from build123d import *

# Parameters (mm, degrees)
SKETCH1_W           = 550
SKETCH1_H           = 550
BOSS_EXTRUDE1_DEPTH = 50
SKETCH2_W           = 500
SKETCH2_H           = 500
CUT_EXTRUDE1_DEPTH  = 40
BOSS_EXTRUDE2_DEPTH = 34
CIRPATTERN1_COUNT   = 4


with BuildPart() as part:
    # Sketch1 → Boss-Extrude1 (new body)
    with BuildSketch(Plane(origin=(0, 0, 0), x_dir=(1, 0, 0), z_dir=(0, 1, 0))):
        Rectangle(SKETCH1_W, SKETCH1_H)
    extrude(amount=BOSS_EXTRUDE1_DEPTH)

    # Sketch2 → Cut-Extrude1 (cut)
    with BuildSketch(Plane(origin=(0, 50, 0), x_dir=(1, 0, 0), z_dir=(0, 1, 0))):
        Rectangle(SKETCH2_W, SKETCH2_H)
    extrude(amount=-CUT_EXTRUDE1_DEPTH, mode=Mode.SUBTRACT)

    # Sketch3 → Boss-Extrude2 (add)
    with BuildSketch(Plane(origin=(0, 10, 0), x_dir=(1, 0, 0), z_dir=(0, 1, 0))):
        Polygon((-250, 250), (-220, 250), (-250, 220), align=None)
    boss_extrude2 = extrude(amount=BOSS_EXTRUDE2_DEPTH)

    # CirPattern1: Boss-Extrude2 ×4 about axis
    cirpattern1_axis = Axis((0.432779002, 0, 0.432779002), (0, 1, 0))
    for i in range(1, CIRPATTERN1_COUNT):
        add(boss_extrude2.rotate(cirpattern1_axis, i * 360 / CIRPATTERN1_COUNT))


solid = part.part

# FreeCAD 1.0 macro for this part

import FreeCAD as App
import Part
import Sketcher
from FreeCAD import Vector
Q = App.Units.Quantity

doc = App.newDocument("Part")
body = doc.addObject("PartDesign::Body", "Body")

sketch1 = body.newObject("Sketcher::SketchObject", "Sketch")
sketch1.AttachmentSupport = (doc.getObject("XZ_Plane"), [""])
sketch1.MapMode = "FlatFace"
sketch1.addGeometry([
    Part.LineSegment(Vector(-275, -275, 0), Vector(-275, 275, 0)),
    Part.LineSegment(Vector(-275, 275, 0), Vector(275, 275, 0)),
    Part.LineSegment(Vector(275, 275, 0), Vector(275, -275, 0)),
    Part.LineSegment(Vector(275, -275, 0), Vector(-275, -275, 0)),
], False)
sketch1.addConstraint([
    Sketcher.Constraint("Coincident", 0, 2, 1, 1),
    Sketcher.Constraint("Coincident", 1, 2, 2, 1),
    Sketcher.Constraint("Coincident", 2, 2, 3, 1),
    Sketcher.Constraint("Coincident", 3, 2, 0, 1),
    Sketcher.Constraint("Vertical", 0),
    Sketcher.Constraint("Horizontal", 1),
    Sketcher.Constraint("Vertical", 2),
    Sketcher.Constraint("Horizontal", 3),
    Sketcher.Constraint("Symmetric", 0, 2, 2, 2, -1, 1),
    Sketcher.Constraint("Equal", 3, 0),
    Sketcher.Constraint("DistanceX", 1, 1, 1, 2, Q("550 mm")),
])
pad1 = body.newObject("PartDesign::Pad", "Pad")
pad1.Profile = sketch1
pad1.Length = 50
pad1.Reversed = True

sketch2 = body.newObject("Sketcher::SketchObject", "Sketch001")
sketch2.AttachmentSupport = (doc.getObject("XZ_Plane"), [""])
sketch2.MapMode = "FlatFace"
sketch2.AttachmentOffset = App.Placement(Vector(0, 0, -50), App.Rotation())
sketch2.addGeometry([
    Part.LineSegment(Vector(-250, -250, 0), Vector(-250, 250, 0)),
    Part.LineSegment(Vector(-250, 250, 0), Vector(250, 250, 0)),
    Part.LineSegment(Vector(250, 250, 0), Vector(250, -250, 0)),
    Part.LineSegment(Vector(250, -250, 0), Vector(-250, -250, 0)),
], False)
sketch2.addConstraint([
    Sketcher.Constraint("Coincident", 0, 2, 1, 1),
    Sketcher.Constraint("Coincident", 1, 2, 2, 1),
    Sketcher.Constraint("Coincident", 2, 2, 3, 1),
    Sketcher.Constraint("Coincident", 3, 2, 0, 1),
    Sketcher.Constraint("Vertical", 0),
    Sketcher.Constraint("Horizontal", 1),
    Sketcher.Constraint("Vertical", 2),
    Sketcher.Constraint("Horizontal", 3),
    Sketcher.Constraint("Symmetric", 0, 2, 2, 2, -1, 1),
    Sketcher.Constraint("Equal", 3, 0),
    Sketcher.Constraint("DistanceX", 1, 1, 1, 2, Q("500 mm")),
])
pocket1 = body.newObject("PartDesign::Pocket", "Pocket")
pocket1.Profile = sketch2
pocket1.Length = 40
pocket1.Reversed = True

sketch3 = body.newObject("Sketcher::SketchObject", "Sketch002")
sketch3.AttachmentSupport = (doc.getObject("XZ_Plane"), [""])
sketch3.MapMode = "FlatFace"
sketch3.AttachmentOffset = App.Placement(Vector(0, 0, -10), App.Rotation())
sketch3.addGeometry([
    Part.LineSegment(Vector(-220, -250, 0), Vector(-250, -250, 0)),
    Part.LineSegment(Vector(-250, -250, 0), Vector(-250, -220, 0)),
    Part.LineSegment(Vector(-250, -220, 0), Vector(-220, -250, 0)),
], False)
sketch3.addConstraint([
    Sketcher.Constraint("Coincident", 0, 2, 1, 1),
    Sketcher.Constraint("Coincident", 1, 2, 2, 1),
    Sketcher.Constraint("Coincident", 2, 2, 0, 1),
    Sketcher.Constraint("Horizontal", 0),
    Sketcher.Constraint("Vertical", 1),
    Sketcher.Constraint("Equal", 0, 1),
    Sketcher.Constraint("DistanceX", 0, 2, 0, 1, Q("30 mm")),
    Sketcher.Constraint("DistanceX", 0, 2, -1, 1, Q("250 mm")),
    Sketcher.Constraint("DistanceY", 0, 2, -1, 1, Q("250 mm")),
])
pad2 = body.newObject("PartDesign::Pad", "Pad001")
pad2.Profile = sketch3
pad2.Length = 34
pad2.Reversed = True
doc.recompute()

datumline = body.newObject("PartDesign::Line", "DatumLine")
datumline.Placement = App.Placement(Vector(0.432779, 0, 0.432779), App.Rotation(Vector(0, 0, 1), Vector(0, 1, 0)))
polarpattern = body.newObject("PartDesign::PolarPattern", "PolarPattern")
polarpattern.Originals = [pad2]
polarpattern.Axis = (datumline, [""])
polarpattern.Angle = 360
polarpattern.Occurrences = 4
body.Tip = polarpattern

doc.recompute()
